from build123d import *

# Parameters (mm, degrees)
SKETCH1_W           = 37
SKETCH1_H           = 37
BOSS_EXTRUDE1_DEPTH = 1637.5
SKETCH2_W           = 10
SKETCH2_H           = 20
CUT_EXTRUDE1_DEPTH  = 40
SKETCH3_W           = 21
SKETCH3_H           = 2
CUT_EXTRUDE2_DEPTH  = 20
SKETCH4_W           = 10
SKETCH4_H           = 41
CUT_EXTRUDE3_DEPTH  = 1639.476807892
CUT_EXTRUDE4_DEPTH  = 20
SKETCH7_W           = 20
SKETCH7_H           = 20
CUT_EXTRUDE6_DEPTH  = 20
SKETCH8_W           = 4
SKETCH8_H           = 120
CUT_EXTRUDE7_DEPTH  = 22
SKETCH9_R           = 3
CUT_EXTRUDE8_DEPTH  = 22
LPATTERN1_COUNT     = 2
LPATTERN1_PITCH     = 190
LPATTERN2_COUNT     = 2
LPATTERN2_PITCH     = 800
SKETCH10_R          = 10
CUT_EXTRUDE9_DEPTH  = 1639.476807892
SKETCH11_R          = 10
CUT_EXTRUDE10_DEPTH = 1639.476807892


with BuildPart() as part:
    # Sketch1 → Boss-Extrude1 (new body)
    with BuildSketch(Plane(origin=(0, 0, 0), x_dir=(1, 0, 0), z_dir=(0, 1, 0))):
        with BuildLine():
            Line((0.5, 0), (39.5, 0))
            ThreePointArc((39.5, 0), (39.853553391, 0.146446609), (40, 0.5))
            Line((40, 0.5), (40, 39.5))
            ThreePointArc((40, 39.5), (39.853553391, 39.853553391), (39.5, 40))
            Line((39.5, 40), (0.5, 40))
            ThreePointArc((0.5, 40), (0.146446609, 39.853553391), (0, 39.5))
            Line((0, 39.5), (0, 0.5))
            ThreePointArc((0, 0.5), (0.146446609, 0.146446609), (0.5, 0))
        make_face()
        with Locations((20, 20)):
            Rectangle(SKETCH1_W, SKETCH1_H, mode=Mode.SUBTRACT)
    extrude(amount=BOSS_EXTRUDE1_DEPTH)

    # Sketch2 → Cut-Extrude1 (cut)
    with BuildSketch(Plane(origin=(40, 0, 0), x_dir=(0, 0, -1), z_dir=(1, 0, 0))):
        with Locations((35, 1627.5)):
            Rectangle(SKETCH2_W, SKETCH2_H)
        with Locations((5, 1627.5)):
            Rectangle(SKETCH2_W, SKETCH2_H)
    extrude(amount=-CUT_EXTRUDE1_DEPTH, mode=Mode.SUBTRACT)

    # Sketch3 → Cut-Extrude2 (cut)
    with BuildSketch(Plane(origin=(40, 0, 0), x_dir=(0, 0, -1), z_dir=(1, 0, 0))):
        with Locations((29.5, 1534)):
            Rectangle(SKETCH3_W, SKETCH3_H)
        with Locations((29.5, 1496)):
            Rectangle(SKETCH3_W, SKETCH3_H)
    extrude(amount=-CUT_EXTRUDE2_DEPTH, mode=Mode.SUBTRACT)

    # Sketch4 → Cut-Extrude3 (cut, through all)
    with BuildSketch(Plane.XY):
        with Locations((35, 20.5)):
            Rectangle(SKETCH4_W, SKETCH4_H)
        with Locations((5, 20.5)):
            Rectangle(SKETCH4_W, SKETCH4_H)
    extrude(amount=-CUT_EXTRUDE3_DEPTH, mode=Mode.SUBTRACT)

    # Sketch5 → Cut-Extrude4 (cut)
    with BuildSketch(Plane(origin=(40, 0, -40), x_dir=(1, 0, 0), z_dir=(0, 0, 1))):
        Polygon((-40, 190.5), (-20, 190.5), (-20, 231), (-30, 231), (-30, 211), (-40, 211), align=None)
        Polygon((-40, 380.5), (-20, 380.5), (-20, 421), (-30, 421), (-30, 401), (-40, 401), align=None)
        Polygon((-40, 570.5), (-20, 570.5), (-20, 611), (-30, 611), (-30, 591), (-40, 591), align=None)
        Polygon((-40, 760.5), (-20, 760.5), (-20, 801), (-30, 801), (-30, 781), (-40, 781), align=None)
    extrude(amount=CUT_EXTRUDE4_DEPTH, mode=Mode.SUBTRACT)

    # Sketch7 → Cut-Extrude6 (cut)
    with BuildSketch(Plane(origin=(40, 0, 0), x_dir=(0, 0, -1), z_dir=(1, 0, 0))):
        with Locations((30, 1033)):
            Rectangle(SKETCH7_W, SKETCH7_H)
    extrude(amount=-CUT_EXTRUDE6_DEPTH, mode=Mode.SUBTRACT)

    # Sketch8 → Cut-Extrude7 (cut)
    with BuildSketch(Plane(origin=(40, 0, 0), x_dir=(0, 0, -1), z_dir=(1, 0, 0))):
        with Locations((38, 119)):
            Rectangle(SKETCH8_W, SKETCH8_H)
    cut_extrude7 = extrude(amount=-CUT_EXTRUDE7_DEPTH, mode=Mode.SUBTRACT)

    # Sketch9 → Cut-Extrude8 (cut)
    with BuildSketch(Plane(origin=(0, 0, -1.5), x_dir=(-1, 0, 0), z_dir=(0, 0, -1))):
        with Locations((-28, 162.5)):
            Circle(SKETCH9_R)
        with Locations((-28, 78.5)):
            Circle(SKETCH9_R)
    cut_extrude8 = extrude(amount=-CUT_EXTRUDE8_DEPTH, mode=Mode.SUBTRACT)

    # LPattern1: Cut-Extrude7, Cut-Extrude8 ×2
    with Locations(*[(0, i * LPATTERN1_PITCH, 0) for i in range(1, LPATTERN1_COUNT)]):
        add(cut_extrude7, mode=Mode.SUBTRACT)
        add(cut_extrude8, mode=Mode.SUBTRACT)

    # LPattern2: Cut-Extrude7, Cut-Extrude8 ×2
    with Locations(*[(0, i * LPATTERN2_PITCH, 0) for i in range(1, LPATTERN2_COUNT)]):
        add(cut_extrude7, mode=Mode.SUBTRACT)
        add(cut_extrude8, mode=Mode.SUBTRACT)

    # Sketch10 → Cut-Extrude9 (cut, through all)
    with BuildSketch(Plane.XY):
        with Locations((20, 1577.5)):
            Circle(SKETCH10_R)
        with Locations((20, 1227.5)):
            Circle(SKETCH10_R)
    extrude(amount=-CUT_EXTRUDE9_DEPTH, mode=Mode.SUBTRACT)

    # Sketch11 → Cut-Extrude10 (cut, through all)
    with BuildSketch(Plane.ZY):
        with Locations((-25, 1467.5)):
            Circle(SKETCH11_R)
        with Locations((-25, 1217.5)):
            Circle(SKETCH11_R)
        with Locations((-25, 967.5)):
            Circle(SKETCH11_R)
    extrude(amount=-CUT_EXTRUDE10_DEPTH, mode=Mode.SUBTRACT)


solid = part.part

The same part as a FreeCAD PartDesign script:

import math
import FreeCAD as App
import Part
import Sketcher
Q = App.Units.Quantity

doc = App.newDocument("Part")
body = doc.addObject("PartDesign::Body", "Body")

# Sketch on XZ plane
sketch1 = body.newObject("Sketcher::SketchObject", "Sketch")
sketch1.AttachmentSupport = (doc.getObject("XZ_Plane"), [""])
sketch1.MapMode = "FlatFace"
sketch1.addGeometry(Part.LineSegment(App.Vector(0.5, 0, 0), App.Vector(39.5, 0, 0)), False)
sketch1.addGeometry(Part.ArcOfCircle(Part.Circle(App.Vector(39.5, -0.5, 0), App.Vector(0, 0, 1), 0.5), math.radians(0), math.radians(90)), False)
sketch1.addGeometry(Part.LineSegment(App.Vector(40, -0.5, 0), App.Vector(40, -39.5, 0)), False)
sketch1.addGeometry(Part.ArcOfCircle(Part.Circle(App.Vector(39.5, -39.5, 0), App.Vector(0, 0, 1), 0.5), math.radians(-90), math.radians(0)), False)
sketch1.addGeometry(Part.LineSegment(App.Vector(39.5, -40, 0), App.Vector(0.5, -40, 0)), False)
sketch1.addGeometry(Part.ArcOfCircle(Part.Circle(App.Vector(0.5, -39.5, 0), App.Vector(0, 0, 1), 0.5), math.radians(180), math.radians(270)), False)
sketch1.addGeometry(Part.LineSegment(App.Vector(0, -39.5, 0), App.Vector(0, -0.5, 0)), False)
sketch1.addGeometry(Part.ArcOfCircle(Part.Circle(App.Vector(0.5, -0.5, 0), App.Vector(0, 0, 1), 0.5), math.radians(90), math.radians(180)), False)
sketch1.addGeometry(Part.LineSegment(App.Vector(38.5, -1.5, 0), App.Vector(1.5, -1.5, 0)), False)
sketch1.addGeometry(Part.LineSegment(App.Vector(1.5, -1.5, 0), App.Vector(1.5, -38.5, 0)), False)
sketch1.addGeometry(Part.LineSegment(App.Vector(1.5, -38.5, 0), App.Vector(38.5, -38.5, 0)), False)
sketch1.addGeometry(Part.LineSegment(App.Vector(38.5, -38.5, 0), App.Vector(38.5, -1.5, 0)), False)
sketch1.addConstraint(Sketcher.Constraint("Tangent", 0, 2, 1, 2))
sketch1.addConstraint(Sketcher.Constraint("Tangent", 1, 1, 2, 1))
sketch1.addConstraint(Sketcher.Constraint("Tangent", 2, 2, 3, 2))
sketch1.addConstraint(Sketcher.Constraint("Tangent", 3, 1, 4, 1))
sketch1.addConstraint(Sketcher.Constraint("Tangent", 4, 2, 5, 2))
sketch1.addConstraint(Sketcher.Constraint("Tangent", 5, 1, 6, 1))
sketch1.addConstraint(Sketcher.Constraint("Tangent", 6, 2, 7, 2))
sketch1.addConstraint(Sketcher.Constraint("Tangent", 7, 1, 0, 1))
sketch1.addConstraint(Sketcher.Constraint("Coincident", 8, 2, 9, 1))
sketch1.addConstraint(Sketcher.Constraint("Coincident", 9, 2, 10, 1))
sketch1.addConstraint(Sketcher.Constraint("Coincident", 10, 2, 11, 1))
sketch1.addConstraint(Sketcher.Constraint("Coincident", 11, 2, 8, 1))
sketch1.addConstraint(Sketcher.Constraint("Horizontal", 0))
sketch1.addConstraint(Sketcher.Constraint("Vertical", 2))
sketch1.addConstraint(Sketcher.Constraint("Horizontal", 4))
sketch1.addConstraint(Sketcher.Constraint("Vertical", 6))
sketch1.addConstraint(Sketcher.Constraint("Horizontal", 8))
sketch1.addConstraint(Sketcher.Constraint("Vertical", 9))
sketch1.addConstraint(Sketcher.Constraint("Horizontal", 10))
sketch1.addConstraint(Sketcher.Constraint("Vertical", 11))
sketch1.addConstraint(Sketcher.Constraint("Equal", 1, 3))
sketch1.addConstraint(Sketcher.Constraint("Equal", 3, 5))
sketch1.addConstraint(Sketcher.Constraint("Equal", 5, 7))
sketch1.addConstraint(Sketcher.Constraint("PointOnObject", 0, 2, -1))
sketch1.addConstraint(Sketcher.Constraint("PointOnObject", 5, 1, -2))
sketch1.addConstraint(Sketcher.Constraint("Equal", 4, 2))
sketch1.addConstraint(Sketcher.Constraint("Equal", 10, 9))
sketch1.addConstraint(Sketcher.Constraint("Radius", 1, Q("0.5 mm")))
sketch1.addConstraint(Sketcher.Constraint("DistanceX", 0, 1, 0, 2, Q("39 mm")))
sketch1.addConstraint(Sketcher.Constraint("DistanceX", 8, 2, 8, 1, Q("37 mm")))
sketch1.addConstraint(Sketcher.Constraint("DistanceX", 7, 3, 8, 2, Q("1 mm")))
sketch1.addConstraint(Sketcher.Constraint("DistanceY", 8, 2, 7, 3, Q("1 mm")))
pad1 = body.newObject("PartDesign::Pad", "Pad")
pad1.Profile = sketch1
pad1.Length = 1637.5
pad1.Reversed = True

# Sketch on YZ plane
sketch2 = body.newObject("Sketcher::SketchObject", "Sketch001")
sketch2.AttachmentSupport = (doc.getObject("YZ_Plane"), [""])
sketch2.MapMode = "FlatFace"
sketch2.AttachmentOffset = App.Placement(App.Vector(0, 0, 40), App.Rotation())
sketch2.addGeometry(Part.LineSegment(App.Vector(1637.5, -30, 0), App.Vector(1617.5, -30, 0)), False)
sketch2.addGeometry(Part.LineSegment(App.Vector(1617.5, -30, 0), App.Vector(1617.5, -40, 0)), False)
sketch2.addGeometry(Part.LineSegment(App.Vector(1617.5, -40, 0), App.Vector(1637.5, -40, 0)), False)
sketch2.addGeometry(Part.LineSegment(App.Vector(1637.5, -40, 0), App.Vector(1637.5, -30, 0)), False)
sketch2.addGeometry(Part.LineSegment(App.Vector(1637.5, 0, 0), App.Vector(1617.5, 0, 0)), False)
sketch2.addGeometry(Part.LineSegment(App.Vector(1617.5, 0, 0), App.Vector(1617.5, -10, 0)), False)
sketch2.addGeometry(Part.LineSegment(App.Vector(1617.5, -10, 0), App.Vector(1637.5, -10, 0)), False)
sketch2.addGeometry(Part.LineSegment(App.Vector(1637.5, -10, 0), App.Vector(1637.5, 0, 0)), False)
sketch2.addConstraint(Sketcher.Constraint("Coincident", 0, 2, 1, 1))
sketch2.addConstraint(Sketcher.Constraint("Coincident", 1, 2, 2, 1))
sketch2.addConstraint(Sketcher.Constraint("Coincident", 2, 2, 3, 1))
sketch2.addConstraint(Sketcher.Constraint("Coincident", 3, 2, 0, 1))
sketch2.addConstraint(Sketcher.Constraint("Coincident", 4, 2, 5, 1))
sketch2.addConstraint(Sketcher.Constraint("Coincident", 5, 2, 6, 1))
sketch2.addConstraint(Sketcher.Constraint("Coincident", 6, 2, 7, 1))
sketch2.addConstraint(Sketcher.Constraint("Coincident", 7, 2, 4, 1))
sketch2.addConstraint(Sketcher.Constraint("Horizontal", 0))
sketch2.addConstraint(Sketcher.Constraint("Vertical", 1))
sketch2.addConstraint(Sketcher.Constraint("Horizontal", 2))
sketch2.addConstraint(Sketcher.Constraint("Vertical", 3))
sketch2.addConstraint(Sketcher.Constraint("Horizontal", 4))
sketch2.addConstraint(Sketcher.Constraint("Vertical", 5))
sketch2.addConstraint(Sketcher.Constraint("Horizontal", 6))
sketch2.addConstraint(Sketcher.Constraint("Vertical", 7))
sketch2.addConstraint(Sketcher.Constraint("PointOnObject", 4, 2, -1))
sketch2.addConstraint(Sketcher.Constraint("Vertical", 1, 2, 4, 2))
sketch2.addConstraint(Sketcher.Constraint("Vertical", 3, 2, 6, 2))
sketch2.addConstraint(Sketcher.Constraint("Equal", 3, 5))
sketch2.addConstraint(Sketcher.Constraint("DistanceX", 0, 2, 0, 1, Q("20 mm")))
sketch2.addConstraint(Sketcher.Constraint("DistanceY", 1, 2, 1, 1, Q("10 mm")))
sketch2.addConstraint(Sketcher.Constraint("DistanceY", 0, 2, -1, 1, Q("30 mm")))
sketch2.addConstraint(Sketcher.Constraint("DistanceX", -1, 1, 0, 2, Q("1617.5 mm")))
pocket1 = body.newObject("PartDesign::Pocket", "Pocket")
pocket1.Profile = sketch2
pocket1.Length = 40

# Sketch on YZ plane
sketch3 = body.newObject("Sketcher::SketchObject", "Sketch002")
sketch3.AttachmentSupport = (doc.getObject("YZ_Plane"), [""])
sketch3.MapMode = "FlatFace"
sketch3.AttachmentOffset = App.Placement(App.Vector(0, 0, 40), App.Rotation())
sketch3.addGeometry(Part.LineSegment(App.Vector(1535, -19, 0), App.Vector(1533, -19, 0)), False)
sketch3.addGeometry(Part.LineSegment(App.Vector(1533, -19, 0), App.Vector(1533, -40, 0)), False)
sketch3.addGeometry(Part.LineSegment(App.Vector(1533, -40, 0), App.Vector(1535, -40, 0)), False)
sketch3.addGeometry(Part.LineSegment(App.Vector(1535, -40, 0), App.Vector(1535, -19, 0)), False)
sketch3.addGeometry(Part.LineSegment(App.Vector(1497, -19, 0), App.Vector(1495, -19, 0)), False)
sketch3.addGeometry(Part.LineSegment(App.Vector(1495, -19, 0), App.Vector(1495, -40, 0)), False)
sketch3.addGeometry(Part.LineSegment(App.Vector(1495, -40, 0), App.Vector(1497, -40, 0)), False)
sketch3.addGeometry(Part.LineSegment(App.Vector(1497, -40, 0), App.Vector(1497, -19, 0)), False)
sketch3.addConstraint(Sketcher.Constraint("Coincident", 0, 2, 1, 1))
sketch3.addConstraint(Sketcher.Constraint("Coincident", 1, 2, 2, 1))
sketch3.addConstraint(Sketcher.Constraint("Coincident", 2, 2, 3, 1))
sketch3.addConstraint(Sketcher.Constraint("Coincident", 3, 2, 0, 1))
sketch3.addConstraint(Sketcher.Constraint("Coincident", 4, 2, 5, 1))
sketch3.addConstraint(Sketcher.Constraint("Coincident", 5, 2, 6, 1))
sketch3.addConstraint(Sketcher.Constraint("Coincident", 6, 2, 7, 1))
sketch3.addConstraint(Sketcher.Constraint("Coincident", 7, 2, 4, 1))
sketch3.addConstraint(Sketcher.Constraint("Horizontal", 0))
sketch3.addConstraint(Sketcher.Constraint("Vertical", 1))
sketch3.addConstraint(Sketcher.Constraint("Horizontal", 2))
sketch3.addConstraint(Sketcher.Constraint("Vertical", 3))
sketch3.addConstraint(Sketcher.Constraint("Horizontal", 4))
sketch3.addConstraint(Sketcher.Constraint("Vertical", 5))
sketch3.addConstraint(Sketcher.Constraint("Horizontal", 6))
sketch3.addConstraint(Sketcher.Constraint("Vertical", 7))
sketch3.addConstraint(Sketcher.Constraint("Horizontal", 3, 2, 4, 2))
sketch3.addConstraint(Sketcher.Constraint("Horizontal", 2, 2, 5, 2))
sketch3.addConstraint(Sketcher.Constraint("Equal", 2, 4))
sketch3.addConstraint(Sketcher.Constraint("DistanceX", 0, 2, 0, 1, Q("2 mm")))
sketch3.addConstraint(Sketcher.Constraint("DistanceY", 1, 2, 1, 1, Q("21 mm")))
sketch3.addConstraint(Sketcher.Constraint("DistanceX", -1, 1, 0, 2, Q("1533 mm")))
sketch3.addConstraint(Sketcher.Constraint("DistanceY", 0, 2, -1, 1, Q("19 mm")))
sketch3.addConstraint(Sketcher.Constraint("DistanceX", -1, 1, 4, 2, Q("1495 mm")))
pocket2 = body.newObject("PartDesign::Pocket", "Pocket001")
pocket2.Profile = sketch3
pocket2.Length = 20

# Sketch on XY plane
sketch4 = body.newObject("Sketcher::SketchObject", "Sketch003")
sketch4.AttachmentSupport = (doc.getObject("XY_Plane"), [""])
sketch4.MapMode = "FlatFace"
sketch4.addGeometry(Part.LineSegment(App.Vector(30, 41, 0), App.Vector(30, 0, 0)), False)
sketch4.addGeometry(Part.LineSegment(App.Vector(30, 0, 0), App.Vector(40, 0, 0)), False)
sketch4.addGeometry(Part.LineSegment(App.Vector(40, 0, 0), App.Vector(40, 41, 0)), False)
sketch4.addGeometry(Part.LineSegment(App.Vector(40, 41, 0), App.Vector(30, 41, 0)), False)
sketch4.addGeometry(Part.LineSegment(App.Vector(0, 41, 0), App.Vector(0, 0, 0)), False)
sketch4.addGeometry(Part.LineSegment(App.Vector(0, 0, 0), App.Vector(10, 0, 0)), False)
sketch4.addGeometry(Part.LineSegment(App.Vector(10, 0, 0), App.Vector(10, 41, 0)), False)
sketch4.addGeometry(Part.LineSegment(App.Vector(10, 41, 0), App.Vector(0, 41, 0)), False)
sketch4.addConstraint(Sketcher.Constraint("Coincident", 0, 2, 1, 1))
sketch4.addConstraint(Sketcher.Constraint("Coincident", 1, 2, 2, 1))
sketch4.addConstraint(Sketcher.Constraint("Coincident", 2, 2, 3, 1))
sketch4.addConstraint(Sketcher.Constraint("Coincident", 3, 2, 0, 1))
sketch4.addConstraint(Sketcher.Constraint("Coincident", 4, 2, 5, 1))
sketch4.addConstraint(Sketcher.Constraint("Coincident", 5, 2, 6, 1))
sketch4.addConstraint(Sketcher.Constraint("Coincident", 6, 2, 7, 1))
sketch4.addConstraint(Sketcher.Constraint("Coincident", 7, 2, 4, 1))
sketch4.addConstraint(Sketcher.Constraint("Vertical", 0))
sketch4.addConstraint(Sketcher.Constraint("Horizontal", 1))
sketch4.addConstraint(Sketcher.Constraint("Vertical", 2))
sketch4.addConstraint(Sketcher.Constraint("Horizontal", 3))
sketch4.addConstraint(Sketcher.Constraint("Vertical", 4))
sketch4.addConstraint(Sketcher.Constraint("Horizontal", 5))
sketch4.addConstraint(Sketcher.Constraint("Vertical", 6))
sketch4.addConstraint(Sketcher.Constraint("Horizontal", 7))
sketch4.addConstraint(Sketcher.Constraint("Coincident", 4, 2, -1, 1))
sketch4.addConstraint(Sketcher.Constraint("PointOnObject", 0, 2, -1))
sketch4.addConstraint(Sketcher.Constraint("Horizontal", 3, 2, 6, 2))
sketch4.addConstraint(Sketcher.Constraint("Equal", 3, 5))
sketch4.addConstraint(Sketcher.Constraint("DistanceX", 1, 1, 1, 2, Q("10 mm")))
sketch4.addConstraint(Sketcher.Constraint("DistanceY", 0, 2, 0, 1, Q("41 mm")))
sketch4.addConstraint(Sketcher.Constraint("DistanceX", -1, 1, 0, 2, Q("30 mm")))
pocket3 = body.newObject("PartDesign::Pocket", "Pocket002")
pocket3.Profile = sketch4
pocket3.Type = "ThroughAll"

# Sketch on XY plane
sketch5 = body.newObject("Sketcher::SketchObject", "Sketch004")
sketch5.AttachmentSupport = (doc.getObject("XY_Plane"), [""])
sketch5.MapMode = "FlatFace"
sketch5.AttachmentOffset = App.Placement(App.Vector(0, 0, -40), App.Rotation())
sketch5.addGeometry(Part.LineSegment(App.Vector(0, 190.5, 0), App.Vector(20, 190.5, 0)), False)
sketch5.addGeometry(Part.LineSegment(App.Vector(20, 190.5, 0), App.Vector(20, 231, 0)), False)
sketch5.addGeometry(Part.LineSegment(App.Vector(20, 231, 0), App.Vector(10, 231, 0)), False)
sketch5.addGeometry(Part.LineSegment(App.Vector(10, 231, 0), App.Vector(10, 211, 0)), False)
sketch5.addGeometry(Part.LineSegment(App.Vector(10, 211, 0), App.Vector(0, 211, 0)), False)
sketch5.addGeometry(Part.LineSegment(App.Vector(0, 211, 0), App.Vector(0, 190.5, 0)), False)
sketch5.addGeometry(Part.LineSegment(App.Vector(0, 380.5, 0), App.Vector(20, 380.5, 0)), False)
sketch5.addGeometry(Part.LineSegment(App.Vector(20, 380.5, 0), App.Vector(20, 421, 0)), False)
sketch5.addGeometry(Part.LineSegment(App.Vector(20, 421, 0), App.Vector(10, 421, 0)), False)
sketch5.addGeometry(Part.LineSegment(App.Vector(10, 421, 0), App.Vector(10, 401, 0)), False)
sketch5.addGeometry(Part.LineSegment(App.Vector(10, 401, 0), App.Vector(0, 401, 0)), False)
sketch5.addGeometry(Part.LineSegment(App.Vector(0, 401, 0), App.Vector(0, 380.5, 0)), False)
sketch5.addGeometry(Part.LineSegment(App.Vector(0, 570.5, 0), App.Vector(20, 570.5, 0)), False)
sketch5.addGeometry(Part.LineSegment(App.Vector(20, 570.5, 0), App.Vector(20, 611, 0)), False)
sketch5.addGeometry(Part.LineSegment(App.Vector(20, 611, 0), App.Vector(10, 611, 0)), False)
sketch5.addGeometry(Part.LineSegment(App.Vector(10, 611, 0), App.Vector(10, 591, 0)), False)
sketch5.addGeometry(Part.LineSegment(App.Vector(10, 591, 0), App.Vector(0, 591, 0)), False)
sketch5.addGeometry(Part.LineSegment(App.Vector(0, 591, 0), App.Vector(0, 570.5, 0)), False)
sketch5.addGeometry(Part.LineSegment(App.Vector(0, 760.5, 0), App.Vector(20, 760.5, 0)), False)
sketch5.addGeometry(Part.LineSegment(App.Vector(20, 760.5, 0), App.Vector(20, 801, 0)), False)
sketch5.addGeometry(Part.LineSegment(App.Vector(20, 801, 0), App.Vector(10, 801, 0)), False)
sketch5.addGeometry(Part.LineSegment(App.Vector(10, 801, 0), App.Vector(10, 781, 0)), False)
sketch5.addGeometry(Part.LineSegment(App.Vector(10, 781, 0), App.Vector(0, 781, 0)), False)
sketch5.addGeometry(Part.LineSegment(App.Vector(0, 781, 0), App.Vector(0, 760.5, 0)), False)
sketch5.addConstraint(Sketcher.Constraint("Coincident", 0, 2, 1, 1))
sketch5.addConstraint(Sketcher.Constraint("Coincident", 1, 2, 2, 1))
sketch5.addConstraint(Sketcher.Constraint("Coincident", 2, 2, 3, 1))
sketch5.addConstraint(Sketcher.Constraint("Coincident", 3, 2, 4, 1))
sketch5.addConstraint(Sketcher.Constraint("Coincident", 4, 2, 5, 1))
sketch5.addConstraint(Sketcher.Constraint("Coincident", 5, 2, 0, 1))
sketch5.addConstraint(Sketcher.Constraint("Coincident", 6, 2, 7, 1))
sketch5.addConstraint(Sketcher.Constraint("Coincident", 7, 2, 8, 1))
sketch5.addConstraint(Sketcher.Constraint("Coincident", 8, 2, 9, 1))
sketch5.addConstraint(Sketcher.Constraint("Coincident", 9, 2, 10, 1))
sketch5.addConstraint(Sketcher.Constraint("Coincident", 10, 2, 11, 1))
sketch5.addConstraint(Sketcher.Constraint("Coincident", 11, 2, 6, 1))
sketch5.addConstraint(Sketcher.Constraint("Coincident", 12, 2, 13, 1))
sketch5.addConstraint(Sketcher.Constraint("Coincident", 13, 2, 14, 1))
sketch5.addConstraint(Sketcher.Constraint("Coincident", 14, 2, 15, 1))
sketch5.addConstraint(Sketcher.Constraint("Coincident", 15, 2, 16, 1))
sketch5.addConstraint(Sketcher.Constraint("Coincident", 16, 2, 17, 1))
sketch5.addConstraint(Sketcher.Constraint("Coincident", 17, 2, 12, 1))
sketch5.addConstraint(Sketcher.Constraint("Coincident", 18, 2, 19, 1))
sketch5.addConstraint(Sketcher.Constraint("Coincident", 19, 2, 20, 1))
sketch5.addConstraint(Sketcher.Constraint("Coincident", 20, 2, 21, 1))
sketch5.addConstraint(Sketcher.Constraint("Coincident", 21, 2, 22, 1))
sketch5.addConstraint(Sketcher.Constraint("Coincident", 22, 2, 23, 1))
sketch5.addConstraint(Sketcher.Constraint("Coincident", 23, 2, 18, 1))
sketch5.addConstraint(Sketcher.Constraint("Horizontal", 0))
sketch5.addConstraint(Sketcher.Constraint("Vertical", 1))
sketch5.addConstraint(Sketcher.Constraint("Horizontal", 2))
sketch5.addConstraint(Sketcher.Constraint("Vertical", 3))
sketch5.addConstraint(Sketcher.Constraint("Horizontal", 4))
sketch5.addConstraint(Sketcher.Constraint("Vertical", 5))
sketch5.addConstraint(Sketcher.Constraint("Horizontal", 6))
sketch5.addConstraint(Sketcher.Constraint("Vertical", 7))
sketch5.addConstraint(Sketcher.Constraint("Horizontal", 8))
sketch5.addConstraint(Sketcher.Constraint("Vertical", 9))
sketch5.addConstraint(Sketcher.Constraint("Horizontal", 10))
sketch5.addConstraint(Sketcher.Constraint("Vertical", 11))
sketch5.addConstraint(Sketcher.Constraint("Horizontal", 12))
sketch5.addConstraint(Sketcher.Constraint("Vertical", 13))
sketch5.addConstraint(Sketcher.Constraint("Horizontal", 14))
sketch5.addConstraint(Sketcher.Constraint("Vertical", 15))
sketch5.addConstraint(Sketcher.Constraint("Horizontal", 16))
sketch5.addConstraint(Sketcher.Constraint("Vertical", 17))
sketch5.addConstraint(Sketcher.Constraint("Horizontal", 18))
sketch5.addConstraint(Sketcher.Constraint("Vertical", 19))
sketch5.addConstraint(Sketcher.Constraint("Horizontal", 20))
sketch5.addConstraint(Sketcher.Constraint("Vertical", 21))
sketch5.addConstraint(Sketcher.Constraint("Horizontal", 22))
sketch5.addConstraint(Sketcher.Constraint("Vertical", 23))
sketch5.addConstraint(Sketcher.Constraint("PointOnObject", 4, 2, -2))
sketch5.addConstraint(Sketcher.Constraint("PointOnObject", 10, 2, -2))
sketch5.addConstraint(Sketcher.Constraint("PointOnObject", 16, 2, -2))
sketch5.addConstraint(Sketcher.Constraint("PointOnObject", 22, 2, -2))
sketch5.addConstraint(Sketcher.Constraint("Vertical", 1, 2, 6, 2))
sketch5.addConstraint(Sketcher.Constraint("Vertical", 3, 2, 8, 2))
sketch5.addConstraint(Sketcher.Constraint("Vertical", 7, 2, 12, 2))
sketch5.addConstraint(Sketcher.Constraint("Vertical", 9, 2, 14, 2))
sketch5.addConstraint(Sketcher.Constraint("Vertical", 13, 2, 18, 2))
sketch5.addConstraint(Sketcher.Constraint("Vertical", 15, 2, 20, 2))
sketch5.addConstraint(Sketcher.Constraint("Equal", 2, 4))
sketch5.addConstraint(Sketcher.Constraint("Equal", 18, 3))
sketch5.addConstraint(Sketcher.Constraint("Equal", 1, 7))
sketch5.addConstraint(Sketcher.Constraint("Equal", 3, 9))
sketch5.addConstraint(Sketcher.Constraint("Equal", 7, 13))
sketch5.addConstraint(Sketcher.Constraint("Equal", 9, 15))
sketch5.addConstraint(Sketcher.Constraint("Equal", 13, 19))
sketch5.addConstraint(Sketcher.Constraint("Equal", 15, 21))
sketch5.addConstraint(Sketcher.Constraint("DistanceX", 0, 1, 0, 2, Q("20 mm")))
sketch5.addConstraint(Sketcher.Constraint("DistanceY", 1, 1, 1, 2, Q("40.5 mm")))
sketch5.addConstraint(Sketcher.Constraint("DistanceY", -1, 1, 1, 2, Q("231 mm")))
sketch5.addConstraint(Sketcher.Constraint("DistanceY", -1, 1, 7, 2, Q("421 mm")))
sketch5.addConstraint(Sketcher.Constraint("DistanceY", -1, 1, 13, 2, Q("611 mm")))
sketch5.addConstraint(Sketcher.Constraint("DistanceY", -1, 1, 19, 2, Q("801 mm")))
pocket4 = body.newObject("PartDesign::Pocket", "Pocket003")
pocket4.Profile = sketch5
pocket4.Length = 20
pocket4.Reversed = True

# Sketch on YZ plane
sketch6 = body.newObject("Sketcher::SketchObject", "Sketch005")
sketch6.AttachmentSupport = (doc.getObject("YZ_Plane"), [""])
sketch6.MapMode = "FlatFace"
sketch6.AttachmentOffset = App.Placement(App.Vector(0, 0, 40), App.Rotation())
sketch6.addGeometry(Part.LineSegment(App.Vector(1043, -20, 0), App.Vector(1023, -20, 0)), False)
sketch6.addGeometry(Part.LineSegment(App.Vector(1023, -20, 0), App.Vector(1023, -40, 0)), False)
sketch6.addGeometry(Part.LineSegment(App.Vector(1023, -40, 0), App.Vector(1043, -40, 0)), False)
sketch6.addGeometry(Part.LineSegment(App.Vector(1043, -40, 0), App.Vector(1043, -20, 0)), False)
sketch6.addConstraint(Sketcher.Constraint("Coincident", 0, 2, 1, 1))
sketch6.addConstraint(Sketcher.Constraint("Coincident", 1, 2, 2, 1))
sketch6.addConstraint(Sketcher.Constraint("Coincident", 2, 2, 3, 1))
sketch6.addConstraint(Sketcher.Constraint("Coincident", 3, 2, 0, 1))
sketch6.addConstraint(Sketcher.Constraint("Horizontal", 0))
sketch6.addConstraint(Sketcher.Constraint("Vertical", 1))
sketch6.addConstraint(Sketcher.Constraint("Horizontal", 2))
sketch6.addConstraint(Sketcher.Constraint("Vertical", 3))
sketch6.addConstraint(Sketcher.Constraint("Equal", 2, 1))
sketch6.addConstraint(Sketcher.Constraint("DistanceX", 0, 2, 0, 1, Q("20 mm")))
sketch6.addConstraint(Sketcher.Constraint("DistanceX", -1, 1, 0, 2, Q("1023 mm")))
sketch6.addConstraint(Sketcher.Constraint("DistanceY", 0, 2, -1, 1, Q("20 mm")))
pocket5 = body.newObject("PartDesign::Pocket", "Pocket004")
pocket5.Profile = sketch6
pocket5.Length = 20

# Sketch on YZ plane
sketch7 = body.newObject("Sketcher::SketchObject", "Sketch006")
sketch7.AttachmentSupport = (doc.getObject("YZ_Plane"), [""])
sketch7.MapMode = "FlatFace"
sketch7.AttachmentOffset = App.Placement(App.Vector(0, 0, 40), App.Rotation())
sketch7.addGeometry(Part.LineSegment(App.Vector(179, -36, 0), App.Vector(59, -36, 0)), False)
sketch7.addGeometry(Part.LineSegment(App.Vector(59, -36, 0), App.Vector(59, -40, 0)), False)
sketch7.addGeometry(Part.LineSegment(App.Vector(59, -40, 0), App.Vector(179, -40, 0)), False)
sketch7.addGeometry(Part.LineSegment(App.Vector(179, -40, 0), App.Vector(179, -36, 0)), False)
sketch7.addConstraint(Sketcher.Constraint("Coincident", 0, 2, 1, 1))
sketch7.addConstraint(Sketcher.Constraint("Coincident", 1, 2, 2, 1))
sketch7.addConstraint(Sketcher.Constraint("Coincident", 2, 2, 3, 1))
sketch7.addConstraint(Sketcher.Constraint("Coincident", 3, 2, 0, 1))
sketch7.addConstraint(Sketcher.Constraint("Horizontal", 0))
sketch7.addConstraint(Sketcher.Constraint("Vertical", 1))
sketch7.addConstraint(Sketcher.Constraint("Horizontal", 2))
sketch7.addConstraint(Sketcher.Constraint("Vertical", 3))
sketch7.addConstraint(Sketcher.Constraint("DistanceX", 0, 2, 0, 1, Q("120 mm")))
sketch7.addConstraint(Sketcher.Constraint("DistanceY", 1, 2, 1, 1, Q("4 mm")))
sketch7.addConstraint(Sketcher.Constraint("DistanceX", -1, 1, 0, 2, Q("59 mm")))
sketch7.addConstraint(Sketcher.Constraint("DistanceY", 0, 2, -1, 1, Q("36 mm")))
pocket6 = body.newObject("PartDesign::Pocket", "Pocket005")
pocket6.Profile = sketch7
pocket6.Length = 22

# Sketch on XY plane
sketch8 = body.newObject("Sketcher::SketchObject", "Sketch007")
sketch8.AttachmentSupport = (doc.getObject("XY_Plane"), [""])
sketch8.MapMode = "FlatFace"
sketch8.AttachmentOffset = App.Placement(App.Vector(0, 0, -1.5), App.Rotation())
sketch8.addGeometry(Part.Circle(App.Vector(28, 162.5, 0), App.Vector(0, 0, 1), 3), False)
sketch8.addGeometry(Part.Circle(App.Vector(28, 78.5, 0), App.Vector(0, 0, 1), 3), False)
sketch8.addConstraint(Sketcher.Constraint("Equal", 0, 1))
sketch8.addConstraint(Sketcher.Constraint("Vertical", 0, 3, 1, 3))
sketch8.addConstraint(Sketcher.Constraint("Diameter", 0, Q("6 mm")))
sketch8.addConstraint(Sketcher.Constraint("DistanceX", -1, 1, 0, 3, Q("28 mm")))
sketch8.addConstraint(Sketcher.Constraint("DistanceY", 1, 3, 0, 3, Q("84 mm")))
sketch8.addConstraint(Sketcher.Constraint("DistanceY", -1, 1, 0, 3, Q("162.5 mm")))
pocket7 = body.newObject("PartDesign::Pocket", "Pocket006")
pocket7.Profile = sketch8
pocket7.Length = 22
pocket7.Reversed = True
doc.recompute()

linearpattern = body.newObject("PartDesign::LinearPattern", "LinearPattern")
linearpattern.Originals = [pocket6, pocket7]
linearpattern.Direction = (doc.getObject("Y_Axis"), [""])
linearpattern.Mode = "offset"
linearpattern.Offset = 190
linearpattern.Occurrences = 2
body.Tip = linearpattern
doc.recompute()

linearpattern2 = body.newObject("PartDesign::LinearPattern", "LinearPattern001")
linearpattern2.Originals = [pocket6, pocket7]
linearpattern2.Direction = (doc.getObject("Y_Axis"), [""])
linearpattern2.Mode = "offset"
linearpattern2.Offset = 800
linearpattern2.Occurrences = 2
body.Tip = linearpattern2

# Sketch on XY plane
sketch9 = body.newObject("Sketcher::SketchObject", "Sketch008")
sketch9.AttachmentSupport = (doc.getObject("XY_Plane"), [""])
sketch9.MapMode = "FlatFace"
sketch9.addGeometry(Part.Circle(App.Vector(20, 1577.5, 0), App.Vector(0, 0, 1), 10), False)
sketch9.addGeometry(Part.Circle(App.Vector(20, 1227.5, 0), App.Vector(0, 0, 1), 10), False)
sketch9.addConstraint(Sketcher.Constraint("Equal", 0, 1))
sketch9.addConstraint(Sketcher.Constraint("Vertical", 0, 3, 1, 3))
sketch9.addConstraint(Sketcher.Constraint("Diameter", 0, Q("20 mm")))
sketch9.addConstraint(Sketcher.Constraint("DistanceX", -1, 1, 0, 3, Q("20 mm")))
sketch9.addConstraint(Sketcher.Constraint("DistanceY", 1, 3, 0, 3, Q("350 mm")))
sketch9.addConstraint(Sketcher.Constraint("DistanceY", -1, 1, 0, 3, Q("1577.5 mm")))
pocket8 = body.newObject("PartDesign::Pocket", "Pocket007")
pocket8.Profile = sketch9
pocket8.Type = "ThroughAll"

# Sketch on YZ plane
sketch10 = body.newObject("Sketcher::SketchObject", "Sketch009")
sketch10.AttachmentSupport = (doc.getObject("YZ_Plane"), [""])
sketch10.MapMode = "FlatFace"
sketch10.addGeometry(Part.Circle(App.Vector(1467.5, -25, 0), App.Vector(0, 0, 1), 10), False)
sketch10.addGeometry(Part.Circle(App.Vector(1217.5, -25, 0), App.Vector(0, 0, 1), 10), False)
sketch10.addGeometry(Part.Circle(App.Vector(967.5, -25, 0), App.Vector(0, 0, 1), 10), False)
sketch10.addConstraint(Sketcher.Constraint("Equal", 0, 1))
sketch10.addConstraint(Sketcher.Constraint("Equal", 1, 2))
sketch10.addConstraint(Sketcher.Constraint("Horizontal", 0, 3, 1, 3))
sketch10.addConstraint(Sketcher.Constraint("Horizontal", 1, 3, 2, 3))
sketch10.addConstraint(Sketcher.Constraint("Diameter", 0, Q("20 mm")))
sketch10.addConstraint(Sketcher.Constraint("DistanceY", 0, 3, -1, 1, Q("25 mm")))
sketch10.addConstraint(Sketcher.Constraint("DistanceX", 1, 3, 0, 3, Q("250 mm")))
sketch10.addConstraint(Sketcher.Constraint("DistanceX", 2, 3, 1, 3, Q("250 mm")))
sketch10.addConstraint(Sketcher.Constraint("DistanceX", -1, 1, 0, 3, Q("1467.5 mm")))
pocket9 = body.newObject("PartDesign::Pocket", "Pocket008")
pocket9.Profile = sketch10
pocket9.Type = "ThroughAll"
pocket9.Reversed = True

doc.recompute()
